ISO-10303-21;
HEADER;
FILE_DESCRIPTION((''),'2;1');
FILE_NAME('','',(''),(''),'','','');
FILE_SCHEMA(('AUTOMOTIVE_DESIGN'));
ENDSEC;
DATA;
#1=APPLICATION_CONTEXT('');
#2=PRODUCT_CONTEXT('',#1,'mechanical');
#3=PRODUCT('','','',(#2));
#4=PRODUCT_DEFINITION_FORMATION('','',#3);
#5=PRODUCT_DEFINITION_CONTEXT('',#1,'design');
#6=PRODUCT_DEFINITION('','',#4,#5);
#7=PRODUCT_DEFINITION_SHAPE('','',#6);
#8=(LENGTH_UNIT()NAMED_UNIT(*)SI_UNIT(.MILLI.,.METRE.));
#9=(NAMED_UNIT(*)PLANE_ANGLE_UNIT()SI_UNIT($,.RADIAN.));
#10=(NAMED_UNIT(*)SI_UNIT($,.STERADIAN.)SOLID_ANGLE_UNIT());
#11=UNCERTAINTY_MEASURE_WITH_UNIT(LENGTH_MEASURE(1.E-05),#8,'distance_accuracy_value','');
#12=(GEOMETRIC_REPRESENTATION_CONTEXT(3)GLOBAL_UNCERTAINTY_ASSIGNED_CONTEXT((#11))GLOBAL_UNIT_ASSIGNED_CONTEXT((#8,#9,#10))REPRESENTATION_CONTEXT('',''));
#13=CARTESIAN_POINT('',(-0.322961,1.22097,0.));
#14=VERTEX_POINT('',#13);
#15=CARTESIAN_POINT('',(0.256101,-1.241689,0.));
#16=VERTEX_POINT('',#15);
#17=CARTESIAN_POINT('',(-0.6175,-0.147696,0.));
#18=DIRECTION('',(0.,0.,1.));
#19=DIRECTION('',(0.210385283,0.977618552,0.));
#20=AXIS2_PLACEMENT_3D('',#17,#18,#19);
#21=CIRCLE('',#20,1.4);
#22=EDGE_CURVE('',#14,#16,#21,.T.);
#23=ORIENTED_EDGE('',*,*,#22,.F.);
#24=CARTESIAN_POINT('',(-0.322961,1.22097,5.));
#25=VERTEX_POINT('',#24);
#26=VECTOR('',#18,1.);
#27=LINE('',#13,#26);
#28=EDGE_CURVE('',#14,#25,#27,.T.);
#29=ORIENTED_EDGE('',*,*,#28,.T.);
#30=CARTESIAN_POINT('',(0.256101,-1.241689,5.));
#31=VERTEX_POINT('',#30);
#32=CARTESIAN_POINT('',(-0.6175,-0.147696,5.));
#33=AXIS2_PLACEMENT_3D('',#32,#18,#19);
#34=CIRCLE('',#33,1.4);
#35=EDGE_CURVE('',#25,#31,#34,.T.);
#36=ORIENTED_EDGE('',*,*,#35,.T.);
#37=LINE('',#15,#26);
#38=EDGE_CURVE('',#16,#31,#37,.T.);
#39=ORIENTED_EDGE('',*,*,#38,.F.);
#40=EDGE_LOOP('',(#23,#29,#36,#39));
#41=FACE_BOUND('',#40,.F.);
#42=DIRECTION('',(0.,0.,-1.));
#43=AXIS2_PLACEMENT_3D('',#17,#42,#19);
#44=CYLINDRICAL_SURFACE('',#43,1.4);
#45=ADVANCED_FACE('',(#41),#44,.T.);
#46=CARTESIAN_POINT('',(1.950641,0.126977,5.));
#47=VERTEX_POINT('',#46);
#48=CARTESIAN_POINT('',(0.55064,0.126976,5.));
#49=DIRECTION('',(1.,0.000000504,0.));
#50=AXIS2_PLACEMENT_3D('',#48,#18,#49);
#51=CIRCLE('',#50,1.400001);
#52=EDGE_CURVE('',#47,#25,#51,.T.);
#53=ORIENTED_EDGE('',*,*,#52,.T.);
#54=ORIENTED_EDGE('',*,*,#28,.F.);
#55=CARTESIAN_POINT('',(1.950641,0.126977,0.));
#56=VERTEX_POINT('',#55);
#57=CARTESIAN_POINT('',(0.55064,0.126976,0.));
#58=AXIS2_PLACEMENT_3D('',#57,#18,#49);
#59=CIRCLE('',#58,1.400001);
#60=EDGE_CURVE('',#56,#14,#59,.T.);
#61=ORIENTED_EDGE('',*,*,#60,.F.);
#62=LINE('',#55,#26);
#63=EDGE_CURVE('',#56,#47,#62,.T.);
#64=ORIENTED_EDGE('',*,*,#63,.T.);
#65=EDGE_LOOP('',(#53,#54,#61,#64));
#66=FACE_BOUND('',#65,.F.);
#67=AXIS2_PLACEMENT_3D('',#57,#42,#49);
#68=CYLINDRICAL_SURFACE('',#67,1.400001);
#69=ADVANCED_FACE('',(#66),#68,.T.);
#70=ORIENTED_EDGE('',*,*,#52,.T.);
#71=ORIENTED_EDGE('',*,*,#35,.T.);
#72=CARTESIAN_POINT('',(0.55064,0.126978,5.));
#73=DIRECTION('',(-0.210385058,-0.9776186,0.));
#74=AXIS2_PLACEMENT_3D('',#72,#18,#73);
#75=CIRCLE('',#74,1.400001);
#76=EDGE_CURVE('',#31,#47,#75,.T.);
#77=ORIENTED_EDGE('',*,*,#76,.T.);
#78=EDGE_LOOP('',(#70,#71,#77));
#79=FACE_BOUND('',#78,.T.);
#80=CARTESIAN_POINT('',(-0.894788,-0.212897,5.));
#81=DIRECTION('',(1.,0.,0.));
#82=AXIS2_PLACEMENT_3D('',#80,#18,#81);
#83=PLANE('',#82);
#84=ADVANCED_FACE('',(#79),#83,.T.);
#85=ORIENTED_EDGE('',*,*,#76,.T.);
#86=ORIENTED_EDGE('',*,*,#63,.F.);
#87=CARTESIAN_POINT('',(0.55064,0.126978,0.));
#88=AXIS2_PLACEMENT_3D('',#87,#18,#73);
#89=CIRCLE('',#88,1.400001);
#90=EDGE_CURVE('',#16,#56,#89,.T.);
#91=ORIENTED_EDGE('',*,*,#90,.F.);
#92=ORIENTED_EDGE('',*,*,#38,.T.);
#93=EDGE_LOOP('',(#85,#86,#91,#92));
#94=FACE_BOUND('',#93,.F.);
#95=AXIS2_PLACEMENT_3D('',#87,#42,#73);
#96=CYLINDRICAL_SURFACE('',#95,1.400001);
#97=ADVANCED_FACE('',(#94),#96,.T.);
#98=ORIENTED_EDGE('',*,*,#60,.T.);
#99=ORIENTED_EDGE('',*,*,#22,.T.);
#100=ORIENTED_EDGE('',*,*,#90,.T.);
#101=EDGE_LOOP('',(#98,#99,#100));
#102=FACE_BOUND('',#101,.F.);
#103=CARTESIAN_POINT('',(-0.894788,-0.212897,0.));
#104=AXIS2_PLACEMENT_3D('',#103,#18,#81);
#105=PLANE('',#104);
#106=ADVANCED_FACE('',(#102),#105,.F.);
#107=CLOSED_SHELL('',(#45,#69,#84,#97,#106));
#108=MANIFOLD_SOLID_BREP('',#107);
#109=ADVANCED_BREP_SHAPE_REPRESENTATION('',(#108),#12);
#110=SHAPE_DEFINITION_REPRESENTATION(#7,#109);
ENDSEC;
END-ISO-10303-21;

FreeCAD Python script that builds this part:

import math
import FreeCAD as App
import Part
import Sketcher

doc = App.newDocument("Part")
body = doc.addObject("PartDesign::Body", "Body")

# Sketch on XY plane
sketch1 = doc.addObject("Sketcher::SketchObject", "Sketch")
body.addObject(sketch1)
sketch1.AttachmentSupport = (doc.XY_Plane, [""])
sketch1.MapMode = "FlatFace"
sketch1.addGeometry(Part.ArcOfCircle(Part.Circle(App.Vector(-0.6175, -0.147696, 0), App.Vector(0, 0, 1), 1.4), math.radians(77.855068), math.radians(308.6089)), False)
sketch1.addGeometry(Part.ArcOfCircle(Part.Circle(App.Vector(0.55064, 0.126978, 0), App.Vector(0, 0, 1), 1.400001), math.radians(-102.144919), math.radians(-0.000032)), False)
sketch1.addGeometry(Part.ArcOfCircle(Part.Circle(App.Vector(0.55064, 0.126976, 0), App.Vector(0, 0, 1), 1.400001), math.radians(0.000029), math.radians(128.608882)), False)
sketch1.addConstraint(Sketcher.Constraint("Coincident", 0, 2, 1, 1))
sketch1.addConstraint(Sketcher.Constraint("Tangent", 1, 2, 2, 1))
sketch1.addConstraint(Sketcher.Constraint("Coincident", 2, 2, 0, 1))
sketch1.addConstraint(Sketcher.Constraint("Equal", 0, 1))
sketch1.addConstraint(Sketcher.Constraint("Equal", 1, 2))
sketch1.addConstraint(Sketcher.Constraint("Horizontal", 2, 3, 1, 2))
sketch1.addConstraint(Sketcher.Constraint("Radius", 0, 1.4))
sketch1.addConstraint(Sketcher.Constraint("DistanceX", 0, 3, -1, 1, 0.6175))
sketch1.addConstraint(Sketcher.Constraint("DistanceX", -1, 1, 0, 2, 0.256101))
sketch1.addConstraint(Sketcher.Constraint("DistanceX", -1, 1, 1, 3, 0.55064))
sketch1.addConstraint(Sketcher.Constraint("DistanceY", 0, 2, -1, 1, 1.241689))
pad1 = doc.addObject("PartDesign::Pad", "Pad")
body.addObject(pad1)
pad1.Profile = sketch1
pad1.Length = 5

doc.recompute()
